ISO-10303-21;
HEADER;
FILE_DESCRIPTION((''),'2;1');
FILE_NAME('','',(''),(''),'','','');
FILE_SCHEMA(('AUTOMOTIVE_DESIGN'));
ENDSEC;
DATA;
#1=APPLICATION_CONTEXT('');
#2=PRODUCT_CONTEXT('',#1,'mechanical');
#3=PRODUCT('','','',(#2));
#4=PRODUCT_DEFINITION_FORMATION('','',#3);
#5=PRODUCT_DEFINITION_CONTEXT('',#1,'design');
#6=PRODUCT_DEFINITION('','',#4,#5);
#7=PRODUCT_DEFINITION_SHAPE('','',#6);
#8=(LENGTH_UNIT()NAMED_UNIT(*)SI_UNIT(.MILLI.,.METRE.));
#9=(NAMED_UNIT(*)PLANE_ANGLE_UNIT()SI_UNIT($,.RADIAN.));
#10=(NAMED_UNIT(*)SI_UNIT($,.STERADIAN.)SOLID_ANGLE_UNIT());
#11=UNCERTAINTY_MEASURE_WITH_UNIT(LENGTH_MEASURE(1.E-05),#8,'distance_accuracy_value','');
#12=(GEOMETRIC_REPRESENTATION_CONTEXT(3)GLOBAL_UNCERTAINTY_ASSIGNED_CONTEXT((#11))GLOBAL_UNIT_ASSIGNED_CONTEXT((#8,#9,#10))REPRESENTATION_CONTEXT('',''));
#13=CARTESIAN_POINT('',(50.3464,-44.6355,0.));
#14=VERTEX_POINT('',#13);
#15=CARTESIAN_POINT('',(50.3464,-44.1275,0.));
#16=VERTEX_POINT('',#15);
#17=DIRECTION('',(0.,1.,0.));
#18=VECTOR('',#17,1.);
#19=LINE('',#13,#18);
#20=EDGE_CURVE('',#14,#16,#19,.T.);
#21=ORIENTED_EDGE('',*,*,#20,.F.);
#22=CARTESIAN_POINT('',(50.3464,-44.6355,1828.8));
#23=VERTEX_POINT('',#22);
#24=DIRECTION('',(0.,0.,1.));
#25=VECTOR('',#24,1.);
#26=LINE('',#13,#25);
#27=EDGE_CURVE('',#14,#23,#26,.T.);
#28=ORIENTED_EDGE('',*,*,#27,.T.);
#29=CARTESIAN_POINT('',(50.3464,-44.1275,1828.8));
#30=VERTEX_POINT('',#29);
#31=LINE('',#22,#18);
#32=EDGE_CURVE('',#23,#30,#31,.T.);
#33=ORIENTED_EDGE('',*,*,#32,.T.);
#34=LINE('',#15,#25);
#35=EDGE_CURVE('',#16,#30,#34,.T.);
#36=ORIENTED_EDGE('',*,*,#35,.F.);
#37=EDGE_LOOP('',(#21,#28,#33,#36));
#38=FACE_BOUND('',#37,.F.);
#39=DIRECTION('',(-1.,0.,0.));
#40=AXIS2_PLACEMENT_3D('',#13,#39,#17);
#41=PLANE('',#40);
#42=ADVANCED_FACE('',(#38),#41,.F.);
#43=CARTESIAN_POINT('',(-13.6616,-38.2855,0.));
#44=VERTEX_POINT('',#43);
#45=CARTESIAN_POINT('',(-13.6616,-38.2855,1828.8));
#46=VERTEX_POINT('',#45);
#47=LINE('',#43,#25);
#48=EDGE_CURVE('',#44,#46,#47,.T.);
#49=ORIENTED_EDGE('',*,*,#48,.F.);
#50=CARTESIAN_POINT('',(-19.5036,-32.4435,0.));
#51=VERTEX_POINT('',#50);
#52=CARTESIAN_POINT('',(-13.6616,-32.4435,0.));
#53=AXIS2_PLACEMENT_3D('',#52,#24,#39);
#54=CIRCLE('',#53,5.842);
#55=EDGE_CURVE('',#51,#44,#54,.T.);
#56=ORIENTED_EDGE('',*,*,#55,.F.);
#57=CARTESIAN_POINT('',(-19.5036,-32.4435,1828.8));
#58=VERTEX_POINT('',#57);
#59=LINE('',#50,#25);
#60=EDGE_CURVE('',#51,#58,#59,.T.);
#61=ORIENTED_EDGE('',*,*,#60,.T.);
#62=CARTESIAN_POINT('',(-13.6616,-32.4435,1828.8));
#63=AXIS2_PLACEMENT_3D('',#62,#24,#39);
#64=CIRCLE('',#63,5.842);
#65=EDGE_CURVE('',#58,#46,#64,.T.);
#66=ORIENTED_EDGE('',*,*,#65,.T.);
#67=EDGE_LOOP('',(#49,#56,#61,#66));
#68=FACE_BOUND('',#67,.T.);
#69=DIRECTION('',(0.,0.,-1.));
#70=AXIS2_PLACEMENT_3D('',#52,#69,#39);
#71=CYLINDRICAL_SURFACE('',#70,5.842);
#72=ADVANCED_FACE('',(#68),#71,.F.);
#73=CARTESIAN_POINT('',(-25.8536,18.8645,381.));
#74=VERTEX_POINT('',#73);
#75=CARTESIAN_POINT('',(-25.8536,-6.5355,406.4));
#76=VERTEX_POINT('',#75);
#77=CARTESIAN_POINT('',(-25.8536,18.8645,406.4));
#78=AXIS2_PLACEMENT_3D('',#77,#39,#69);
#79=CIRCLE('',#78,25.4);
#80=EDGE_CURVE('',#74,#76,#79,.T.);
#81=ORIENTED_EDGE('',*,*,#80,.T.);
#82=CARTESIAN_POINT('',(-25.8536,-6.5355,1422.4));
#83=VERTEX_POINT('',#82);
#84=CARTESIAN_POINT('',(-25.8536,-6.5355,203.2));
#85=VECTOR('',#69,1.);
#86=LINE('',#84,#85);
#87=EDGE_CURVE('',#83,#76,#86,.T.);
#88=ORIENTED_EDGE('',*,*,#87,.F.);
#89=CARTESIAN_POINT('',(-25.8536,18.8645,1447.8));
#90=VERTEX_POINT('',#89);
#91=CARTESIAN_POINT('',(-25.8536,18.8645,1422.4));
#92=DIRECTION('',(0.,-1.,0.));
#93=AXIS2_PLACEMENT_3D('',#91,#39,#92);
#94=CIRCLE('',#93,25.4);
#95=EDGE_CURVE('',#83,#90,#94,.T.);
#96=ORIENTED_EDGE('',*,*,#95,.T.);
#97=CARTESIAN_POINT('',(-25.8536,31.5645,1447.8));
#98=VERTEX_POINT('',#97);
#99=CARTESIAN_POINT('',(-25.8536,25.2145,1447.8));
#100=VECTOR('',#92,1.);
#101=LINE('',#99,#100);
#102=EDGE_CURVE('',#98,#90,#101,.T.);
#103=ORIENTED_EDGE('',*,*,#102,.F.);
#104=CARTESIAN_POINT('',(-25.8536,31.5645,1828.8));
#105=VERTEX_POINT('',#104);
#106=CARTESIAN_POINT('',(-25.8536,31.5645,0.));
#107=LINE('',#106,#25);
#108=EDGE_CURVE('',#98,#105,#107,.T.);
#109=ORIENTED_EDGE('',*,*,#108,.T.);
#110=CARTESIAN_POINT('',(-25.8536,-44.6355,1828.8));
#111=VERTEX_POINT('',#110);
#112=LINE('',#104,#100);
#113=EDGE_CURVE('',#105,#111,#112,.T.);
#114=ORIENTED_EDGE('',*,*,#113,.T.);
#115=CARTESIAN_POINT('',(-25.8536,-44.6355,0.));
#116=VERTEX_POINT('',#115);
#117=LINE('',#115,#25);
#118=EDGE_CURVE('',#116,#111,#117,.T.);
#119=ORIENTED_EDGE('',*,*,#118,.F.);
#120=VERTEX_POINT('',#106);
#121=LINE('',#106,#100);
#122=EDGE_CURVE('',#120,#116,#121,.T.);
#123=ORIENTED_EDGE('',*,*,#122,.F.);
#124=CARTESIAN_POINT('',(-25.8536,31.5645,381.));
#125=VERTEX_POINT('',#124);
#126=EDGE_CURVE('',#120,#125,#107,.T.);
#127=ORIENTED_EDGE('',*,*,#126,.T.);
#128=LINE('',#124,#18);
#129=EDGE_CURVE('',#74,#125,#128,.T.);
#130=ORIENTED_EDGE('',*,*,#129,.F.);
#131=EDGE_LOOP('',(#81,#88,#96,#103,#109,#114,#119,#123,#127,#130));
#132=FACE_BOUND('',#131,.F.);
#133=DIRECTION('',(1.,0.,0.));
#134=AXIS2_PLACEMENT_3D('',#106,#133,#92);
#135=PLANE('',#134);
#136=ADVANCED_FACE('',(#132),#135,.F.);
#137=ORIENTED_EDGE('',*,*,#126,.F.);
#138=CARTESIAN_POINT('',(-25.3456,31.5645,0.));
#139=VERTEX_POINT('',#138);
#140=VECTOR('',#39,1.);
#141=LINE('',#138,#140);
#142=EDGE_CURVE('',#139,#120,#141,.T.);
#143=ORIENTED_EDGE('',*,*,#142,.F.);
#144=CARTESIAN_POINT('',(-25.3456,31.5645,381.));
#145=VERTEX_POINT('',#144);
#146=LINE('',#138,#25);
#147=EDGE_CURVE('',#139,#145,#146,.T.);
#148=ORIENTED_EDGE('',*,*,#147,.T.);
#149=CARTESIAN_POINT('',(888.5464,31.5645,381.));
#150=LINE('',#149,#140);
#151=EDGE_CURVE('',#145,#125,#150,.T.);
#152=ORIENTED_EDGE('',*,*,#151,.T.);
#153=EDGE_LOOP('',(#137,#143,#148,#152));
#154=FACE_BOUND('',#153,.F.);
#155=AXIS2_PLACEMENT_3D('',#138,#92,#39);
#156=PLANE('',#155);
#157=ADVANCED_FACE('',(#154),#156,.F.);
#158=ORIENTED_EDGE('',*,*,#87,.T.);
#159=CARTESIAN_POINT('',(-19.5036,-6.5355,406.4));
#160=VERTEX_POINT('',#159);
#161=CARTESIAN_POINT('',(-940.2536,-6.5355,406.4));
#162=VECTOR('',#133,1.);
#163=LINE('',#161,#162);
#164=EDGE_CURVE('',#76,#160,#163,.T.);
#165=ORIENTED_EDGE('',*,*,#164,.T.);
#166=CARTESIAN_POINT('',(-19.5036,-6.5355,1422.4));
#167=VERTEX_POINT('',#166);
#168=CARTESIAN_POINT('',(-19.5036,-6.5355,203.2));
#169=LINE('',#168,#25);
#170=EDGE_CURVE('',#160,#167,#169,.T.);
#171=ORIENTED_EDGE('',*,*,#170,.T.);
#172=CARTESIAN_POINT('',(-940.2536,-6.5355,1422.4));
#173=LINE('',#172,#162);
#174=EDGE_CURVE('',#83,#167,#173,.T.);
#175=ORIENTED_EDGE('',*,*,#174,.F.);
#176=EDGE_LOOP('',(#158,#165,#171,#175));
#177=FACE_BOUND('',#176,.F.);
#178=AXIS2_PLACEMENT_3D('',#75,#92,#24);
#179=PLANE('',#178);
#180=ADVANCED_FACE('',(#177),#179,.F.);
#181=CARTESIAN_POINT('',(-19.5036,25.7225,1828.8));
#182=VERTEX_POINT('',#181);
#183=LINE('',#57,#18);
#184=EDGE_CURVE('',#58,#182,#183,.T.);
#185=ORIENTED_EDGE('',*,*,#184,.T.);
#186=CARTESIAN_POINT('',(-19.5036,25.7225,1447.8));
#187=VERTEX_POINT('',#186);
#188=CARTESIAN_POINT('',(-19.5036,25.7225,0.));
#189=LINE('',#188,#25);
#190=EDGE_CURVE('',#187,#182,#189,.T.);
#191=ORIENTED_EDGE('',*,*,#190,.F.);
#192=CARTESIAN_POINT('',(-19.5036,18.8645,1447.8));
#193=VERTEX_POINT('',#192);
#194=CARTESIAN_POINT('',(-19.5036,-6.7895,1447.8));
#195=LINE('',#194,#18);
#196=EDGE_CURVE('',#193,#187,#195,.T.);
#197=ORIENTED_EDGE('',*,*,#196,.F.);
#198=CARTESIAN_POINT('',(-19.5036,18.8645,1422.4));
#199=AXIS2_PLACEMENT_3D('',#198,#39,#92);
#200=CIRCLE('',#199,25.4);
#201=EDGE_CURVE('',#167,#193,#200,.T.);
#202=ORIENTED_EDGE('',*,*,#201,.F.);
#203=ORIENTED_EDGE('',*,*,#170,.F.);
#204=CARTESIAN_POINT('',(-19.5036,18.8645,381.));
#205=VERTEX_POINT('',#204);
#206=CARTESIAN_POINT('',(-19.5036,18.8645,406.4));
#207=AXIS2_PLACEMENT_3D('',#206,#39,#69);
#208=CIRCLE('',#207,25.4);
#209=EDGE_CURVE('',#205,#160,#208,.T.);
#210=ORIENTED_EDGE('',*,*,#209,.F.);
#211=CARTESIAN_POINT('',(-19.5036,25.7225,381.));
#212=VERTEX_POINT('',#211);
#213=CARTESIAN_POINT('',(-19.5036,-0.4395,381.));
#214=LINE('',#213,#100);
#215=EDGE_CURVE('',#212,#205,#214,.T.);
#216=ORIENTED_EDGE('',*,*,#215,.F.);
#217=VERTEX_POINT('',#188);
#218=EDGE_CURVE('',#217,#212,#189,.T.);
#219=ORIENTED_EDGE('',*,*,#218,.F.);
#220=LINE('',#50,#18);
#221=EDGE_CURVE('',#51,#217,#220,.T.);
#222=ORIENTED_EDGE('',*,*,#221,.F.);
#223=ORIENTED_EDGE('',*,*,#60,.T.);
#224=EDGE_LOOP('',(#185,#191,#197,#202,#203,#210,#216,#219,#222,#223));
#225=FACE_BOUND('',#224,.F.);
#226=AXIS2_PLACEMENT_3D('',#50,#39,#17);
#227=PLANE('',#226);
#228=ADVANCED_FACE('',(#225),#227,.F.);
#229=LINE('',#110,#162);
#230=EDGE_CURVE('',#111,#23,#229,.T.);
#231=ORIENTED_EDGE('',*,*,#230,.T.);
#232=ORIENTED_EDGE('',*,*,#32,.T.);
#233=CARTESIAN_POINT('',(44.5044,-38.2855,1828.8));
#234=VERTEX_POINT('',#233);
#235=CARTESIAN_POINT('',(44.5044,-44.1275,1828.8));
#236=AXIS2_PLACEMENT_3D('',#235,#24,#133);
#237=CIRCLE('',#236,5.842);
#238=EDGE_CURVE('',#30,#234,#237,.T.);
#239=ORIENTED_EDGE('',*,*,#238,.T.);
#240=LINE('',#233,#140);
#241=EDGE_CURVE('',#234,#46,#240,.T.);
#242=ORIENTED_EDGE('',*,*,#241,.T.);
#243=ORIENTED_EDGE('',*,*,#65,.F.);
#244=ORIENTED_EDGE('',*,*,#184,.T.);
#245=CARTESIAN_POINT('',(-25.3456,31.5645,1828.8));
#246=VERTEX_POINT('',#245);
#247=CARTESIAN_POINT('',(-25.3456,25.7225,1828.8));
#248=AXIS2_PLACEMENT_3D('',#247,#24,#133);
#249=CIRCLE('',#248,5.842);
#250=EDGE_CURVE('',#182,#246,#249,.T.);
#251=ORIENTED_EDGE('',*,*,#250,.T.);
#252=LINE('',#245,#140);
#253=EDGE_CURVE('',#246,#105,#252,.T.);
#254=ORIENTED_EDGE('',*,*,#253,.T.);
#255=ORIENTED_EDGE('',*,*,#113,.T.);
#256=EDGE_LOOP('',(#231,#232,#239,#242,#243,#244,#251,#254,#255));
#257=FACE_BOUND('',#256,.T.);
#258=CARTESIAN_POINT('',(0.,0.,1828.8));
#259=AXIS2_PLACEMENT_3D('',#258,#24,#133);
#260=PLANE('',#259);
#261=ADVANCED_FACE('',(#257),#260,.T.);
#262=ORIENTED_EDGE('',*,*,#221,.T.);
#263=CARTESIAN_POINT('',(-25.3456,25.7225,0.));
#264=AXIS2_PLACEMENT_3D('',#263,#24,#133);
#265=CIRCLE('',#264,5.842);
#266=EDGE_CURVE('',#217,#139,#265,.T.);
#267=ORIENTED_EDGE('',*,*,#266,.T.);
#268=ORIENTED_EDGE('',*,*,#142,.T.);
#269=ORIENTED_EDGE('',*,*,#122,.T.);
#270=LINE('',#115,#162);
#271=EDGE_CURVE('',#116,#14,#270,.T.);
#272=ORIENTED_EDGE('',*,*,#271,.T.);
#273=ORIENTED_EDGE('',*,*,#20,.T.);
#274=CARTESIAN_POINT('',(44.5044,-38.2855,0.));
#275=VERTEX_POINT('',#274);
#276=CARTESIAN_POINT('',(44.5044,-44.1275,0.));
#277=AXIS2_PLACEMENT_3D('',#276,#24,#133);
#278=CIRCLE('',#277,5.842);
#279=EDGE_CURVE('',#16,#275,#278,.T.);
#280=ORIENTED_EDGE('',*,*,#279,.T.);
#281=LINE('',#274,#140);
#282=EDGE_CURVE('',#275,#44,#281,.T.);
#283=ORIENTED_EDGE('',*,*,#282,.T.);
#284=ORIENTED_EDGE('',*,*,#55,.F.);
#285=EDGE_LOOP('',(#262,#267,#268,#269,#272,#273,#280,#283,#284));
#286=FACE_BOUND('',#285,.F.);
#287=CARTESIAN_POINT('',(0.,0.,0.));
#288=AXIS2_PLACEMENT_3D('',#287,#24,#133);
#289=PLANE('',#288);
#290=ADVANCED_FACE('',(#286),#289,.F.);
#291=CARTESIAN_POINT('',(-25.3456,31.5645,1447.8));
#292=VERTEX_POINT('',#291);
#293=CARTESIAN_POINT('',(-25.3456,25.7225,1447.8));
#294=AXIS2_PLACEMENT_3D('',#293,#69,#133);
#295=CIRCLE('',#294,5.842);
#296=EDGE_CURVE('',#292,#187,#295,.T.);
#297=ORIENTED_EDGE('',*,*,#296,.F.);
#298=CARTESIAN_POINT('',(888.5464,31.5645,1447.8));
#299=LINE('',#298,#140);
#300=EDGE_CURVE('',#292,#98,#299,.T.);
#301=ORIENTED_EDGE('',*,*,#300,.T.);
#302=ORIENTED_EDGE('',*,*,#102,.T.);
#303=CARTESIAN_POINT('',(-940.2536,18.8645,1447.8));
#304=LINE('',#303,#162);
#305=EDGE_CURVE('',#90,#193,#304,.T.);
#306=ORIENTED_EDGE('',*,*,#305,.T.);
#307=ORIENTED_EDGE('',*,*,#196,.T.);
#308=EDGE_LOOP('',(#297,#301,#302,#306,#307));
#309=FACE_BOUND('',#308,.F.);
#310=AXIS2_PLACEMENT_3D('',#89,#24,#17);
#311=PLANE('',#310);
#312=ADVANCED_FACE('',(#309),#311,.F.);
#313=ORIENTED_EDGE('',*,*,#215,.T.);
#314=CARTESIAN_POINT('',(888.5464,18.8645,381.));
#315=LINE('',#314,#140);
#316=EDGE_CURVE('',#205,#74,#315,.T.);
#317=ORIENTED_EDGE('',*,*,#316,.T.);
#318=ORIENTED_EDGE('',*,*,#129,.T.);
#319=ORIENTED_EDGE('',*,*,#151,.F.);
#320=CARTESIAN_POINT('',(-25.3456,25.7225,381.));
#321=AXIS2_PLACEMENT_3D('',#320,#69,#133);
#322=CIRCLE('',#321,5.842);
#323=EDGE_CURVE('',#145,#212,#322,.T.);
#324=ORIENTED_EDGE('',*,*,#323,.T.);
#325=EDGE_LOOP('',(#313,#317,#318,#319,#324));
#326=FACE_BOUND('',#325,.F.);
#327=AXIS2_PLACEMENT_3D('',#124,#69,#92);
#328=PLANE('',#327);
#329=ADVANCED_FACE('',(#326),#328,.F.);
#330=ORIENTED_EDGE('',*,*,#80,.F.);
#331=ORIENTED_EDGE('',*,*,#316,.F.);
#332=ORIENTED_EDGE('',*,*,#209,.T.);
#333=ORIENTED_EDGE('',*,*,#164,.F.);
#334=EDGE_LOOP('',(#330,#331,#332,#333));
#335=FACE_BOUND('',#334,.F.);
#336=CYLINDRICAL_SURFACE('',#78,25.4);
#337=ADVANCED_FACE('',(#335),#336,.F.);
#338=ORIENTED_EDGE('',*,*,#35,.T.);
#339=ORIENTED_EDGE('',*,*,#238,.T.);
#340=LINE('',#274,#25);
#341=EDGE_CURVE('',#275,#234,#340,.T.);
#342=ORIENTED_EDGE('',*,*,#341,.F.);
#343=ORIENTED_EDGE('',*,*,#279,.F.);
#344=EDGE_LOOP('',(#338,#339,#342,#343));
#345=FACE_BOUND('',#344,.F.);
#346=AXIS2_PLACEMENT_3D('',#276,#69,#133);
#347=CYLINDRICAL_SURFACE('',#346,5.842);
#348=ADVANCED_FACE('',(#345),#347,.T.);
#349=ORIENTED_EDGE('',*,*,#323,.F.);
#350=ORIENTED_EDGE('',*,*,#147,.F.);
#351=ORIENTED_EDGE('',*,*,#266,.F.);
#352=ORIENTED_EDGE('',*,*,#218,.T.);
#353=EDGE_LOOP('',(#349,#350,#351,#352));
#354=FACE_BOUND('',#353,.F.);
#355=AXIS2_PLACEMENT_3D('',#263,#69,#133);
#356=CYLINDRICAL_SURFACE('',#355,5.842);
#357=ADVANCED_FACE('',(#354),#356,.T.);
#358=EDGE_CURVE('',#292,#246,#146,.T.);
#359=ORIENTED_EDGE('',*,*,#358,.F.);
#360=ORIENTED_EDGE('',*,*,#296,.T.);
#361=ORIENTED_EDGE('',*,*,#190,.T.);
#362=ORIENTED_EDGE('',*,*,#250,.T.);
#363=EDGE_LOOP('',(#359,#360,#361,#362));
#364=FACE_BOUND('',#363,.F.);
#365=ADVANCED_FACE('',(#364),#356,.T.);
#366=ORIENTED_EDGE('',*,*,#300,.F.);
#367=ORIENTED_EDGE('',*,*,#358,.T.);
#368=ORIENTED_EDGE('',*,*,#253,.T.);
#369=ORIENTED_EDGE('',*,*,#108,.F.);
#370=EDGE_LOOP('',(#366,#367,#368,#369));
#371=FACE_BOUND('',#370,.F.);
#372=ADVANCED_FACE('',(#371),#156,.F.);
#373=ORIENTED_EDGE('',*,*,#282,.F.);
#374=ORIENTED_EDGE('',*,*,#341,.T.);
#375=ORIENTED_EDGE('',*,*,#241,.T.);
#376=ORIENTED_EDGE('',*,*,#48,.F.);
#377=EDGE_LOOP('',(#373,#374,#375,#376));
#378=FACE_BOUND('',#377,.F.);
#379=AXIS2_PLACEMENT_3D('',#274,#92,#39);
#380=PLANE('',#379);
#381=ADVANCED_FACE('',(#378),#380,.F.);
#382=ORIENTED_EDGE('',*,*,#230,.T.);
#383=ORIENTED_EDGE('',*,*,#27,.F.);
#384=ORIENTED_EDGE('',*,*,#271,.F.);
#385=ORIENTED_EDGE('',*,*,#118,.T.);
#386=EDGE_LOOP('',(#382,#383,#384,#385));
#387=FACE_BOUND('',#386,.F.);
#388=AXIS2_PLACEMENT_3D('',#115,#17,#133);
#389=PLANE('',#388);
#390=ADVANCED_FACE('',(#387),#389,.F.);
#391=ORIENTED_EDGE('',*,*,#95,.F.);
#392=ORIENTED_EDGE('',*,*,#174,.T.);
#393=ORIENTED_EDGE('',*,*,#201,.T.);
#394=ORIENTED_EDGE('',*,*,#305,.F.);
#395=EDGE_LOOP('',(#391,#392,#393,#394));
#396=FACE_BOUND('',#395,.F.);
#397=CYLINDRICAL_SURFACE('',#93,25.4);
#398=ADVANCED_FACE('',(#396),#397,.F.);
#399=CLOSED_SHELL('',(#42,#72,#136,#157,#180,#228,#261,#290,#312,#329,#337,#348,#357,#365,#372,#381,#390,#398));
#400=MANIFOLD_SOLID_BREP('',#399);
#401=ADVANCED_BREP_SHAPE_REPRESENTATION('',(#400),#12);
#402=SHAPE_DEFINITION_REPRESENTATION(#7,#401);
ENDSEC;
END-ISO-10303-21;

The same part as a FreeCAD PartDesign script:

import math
import FreeCAD as App
import Part
import Sketcher

V = App.Vector
Q = App.Units.Quantity

doc = App.newDocument("Part")
params = doc.addObject("Spreadsheet::Sheet", "Params")
for row, (alias, value) in enumerate([
    ("sketch1_width", "3 in"),
    ("sketch1_radius", "0.23 in"),
    ("pad1_length", "72 in"),
    ("sketch2_radius", "1 in"),
    ("sketch2_height", "42 in"),
    ("pocket1_length", "72 in"),
], start=1):
    params.set(f"A{row}", alias)
    params.set(f"B{row}", "=" + value)
    params.setAlias(f"B{row}", alias)

body = doc.addObject("PartDesign::Body", "Body")

sketch1 = doc.addObject("Sketcher::SketchObject", "Sketch")
body.addObject(sketch1)
sketch1.AttachmentSupport = (doc.XY_Plane, [""])
sketch1.MapMode = "FlatFace"
sketch1.addGeometry(Part.LineSegment(V(-25.3, 31.6, 0), V(-25.9, 31.6, 0)), False)
sketch1.addGeometry(Part.LineSegment(V(-25.9, 31.6, 0), V(-25.9, -44.6, 0)), False)
sketch1.addGeometry(Part.LineSegment(V(-25.9, -44.6, 0), V(50.3, -44.6, 0)), False)
sketch1.addGeometry(Part.LineSegment(V(50.3, -44.6, 0), V(50.3, -44.1, 0)), False)
sketch1.addGeometry(Part.ArcOfCircle(Part.Circle(V(44.5, -44.1, 0), V(0, 0, 1), 5.8), math.radians(0), math.radians(90)), False)
sketch1.addGeometry(Part.LineSegment(V(44.5, -38.3, 0), V(-13.7, -38.3, 0)), False)
sketch1.addGeometry(Part.ArcOfCircle(Part.Circle(V(-13.7, -32.4, 0), V(0, 0, 1), 5.8), math.radians(180), math.radians(270)), False)
sketch1.addGeometry(Part.LineSegment(V(-19.5, -32.4, 0), V(-19.5, 25.7, 0)), False)
sketch1.addGeometry(Part.ArcOfCircle(Part.Circle(V(-25.3, 25.7, 0), V(0, 0, 1), 5.8), math.radians(0), math.radians(90)), False)
sketch1.addConstraint(Sketcher.Constraint("Coincident", 0, 2, 1, 1))
sketch1.addConstraint(Sketcher.Constraint("Coincident", 1, 2, 2, 1))
sketch1.addConstraint(Sketcher.Constraint("Coincident", 2, 2, 3, 1))
sketch1.addConstraint(Sketcher.Constraint("Tangent", 3, 2, 4, 1))
sketch1.addConstraint(Sketcher.Constraint("Tangent", 4, 2, 5, 1))
sketch1.addConstraint(Sketcher.Constraint("Tangent", 5, 2, 6, 2))
sketch1.addConstraint(Sketcher.Constraint("Tangent", 6, 1, 7, 1))
sketch1.addConstraint(Sketcher.Constraint("Tangent", 7, 2, 8, 1))
sketch1.addConstraint(Sketcher.Constraint("Tangent", 8, 2, 0, 1))
sketch1.addConstraint(Sketcher.Constraint("Horizontal", 0))
sketch1.addConstraint(Sketcher.Constraint("Vertical", 1))
sketch1.addConstraint(Sketcher.Constraint("Horizontal", 2))
sketch1.addConstraint(Sketcher.Constraint("Vertical", 3))
sketch1.addConstraint(Sketcher.Constraint("Horizontal", 5))
sketch1.addConstraint(Sketcher.Constraint("Vertical", 7))
sketch1.addConstraint(Sketcher.Constraint("Equal", 4, 6))
sketch1.addConstraint(Sketcher.Constraint("Equal", 6, 8))
sketch1.addConstraint(Sketcher.Constraint("Equal", 2, 1))
sketch1.addConstraint(Sketcher.Constraint("Equal", 0, 3))
sketch1.addConstraint(Sketcher.Constraint("DistanceX", 2, 1, 2, 2, Q("3 in")))
sketch1.addConstraint(Sketcher.Constraint("Radius", 4, Q("0.23 in")))
sketch1.addConstraint(Sketcher.Constraint("DistanceY", 2, 2, 4, 2, Q("0.25 in")))
sketch1.addConstraint(Sketcher.Constraint("DistanceY", 4, 3, -1, 1, Q("1.7373 in")))
sketch1.addConstraint(Sketcher.Constraint("DistanceX", -1, 1, 4, 3, 44.5044))
sketch1.setExpression("Constraints[19]", "Params.sketch1_width")
sketch1.setExpression("Constraints[20]", "Params.sketch1_radius")
pad1 = doc.addObject("PartDesign::Pad", "Pad")
body.addObject(pad1)
pad1.Profile = sketch1
pad1.setExpression("Length", "Params.pad1_length")

sketch2 = doc.addObject("Sketcher::SketchObject", "Sketch001")
body.addObject(sketch2)
sketch2.AttachmentSupport = (doc.YZ_Plane, [""])
sketch2.MapMode = "FlatFace"
sketch2.AttachmentOffset = App.Placement(V(0, 0, -25.8536), App.Rotation())
sketch2.addGeometry(Part.LineSegment(V(19, 1448, 0), V(32, 1448, 0)), False)
sketch2.addGeometry(Part.LineSegment(V(32, 1448, 0), V(32, 381, 0)), False)
sketch2.addGeometry(Part.LineSegment(V(32, 381, 0), V(19, 381, 0)), False)
sketch2.addGeometry(Part.ArcOfCircle(Part.Circle(V(19, 406, 0), V(0, 0, 1), 25), math.radians(180), math.radians(270)), False)
sketch2.addGeometry(Part.LineSegment(V(-7, 406, 0), V(-7, 1422, 0)), False)
sketch2.addGeometry(Part.ArcOfCircle(Part.Circle(V(19, 1422, 0), V(0, 0, 1), 25), math.radians(90), math.radians(180)), False)
sketch2.addConstraint(Sketcher.Constraint("Coincident", 0, 2, 1, 1))
sketch2.addConstraint(Sketcher.Constraint("Coincident", 1, 2, 2, 1))
sketch2.addConstraint(Sketcher.Constraint("Tangent", 2, 2, 3, 2))
sketch2.addConstraint(Sketcher.Constraint("Tangent", 3, 1, 4, 1))
sketch2.addConstraint(Sketcher.Constraint("Tangent", 4, 2, 5, 2))
sketch2.addConstraint(Sketcher.Constraint("Tangent", 5, 1, 0, 1))
sketch2.addConstraint(Sketcher.Constraint("Horizontal", 0))
sketch2.addConstraint(Sketcher.Constraint("Vertical", 1))
sketch2.addConstraint(Sketcher.Constraint("Horizontal", 2))
sketch2.addConstraint(Sketcher.Constraint("Vertical", 4))
sketch2.addConstraint(Sketcher.Constraint("Equal", 3, 5))
sketch2.addConstraint(Sketcher.Constraint("Radius", 3, Q("1 in")))
sketch2.addConstraint(Sketcher.Constraint("DistanceY", -1, 1, 1, 2, Q("15 in")))
sketch2.addConstraint(Sketcher.Constraint("DistanceX", 3, 1, 1, 2, Q("1.5 in")))
sketch2.addConstraint(Sketcher.Constraint("DistanceY", 1, 2, 1, 1, Q("42 in")))
sketch2.addConstraint(Sketcher.Constraint("DistanceX", -1, 1, 3, 3, Q("0.7427 in")))
sketch2.setExpression("Constraints[11]", "Params.sketch2_radius")
sketch2.setExpression("Constraints[14]", "Params.sketch2_height")
pocket1 = doc.addObject("PartDesign::Pocket", "Pocket")
body.addObject(pocket1)
pocket1.Profile = sketch2
pocket1.setExpression("Length", "Params.pocket1_length")
pocket1.Midplane = True

doc.recompute()
